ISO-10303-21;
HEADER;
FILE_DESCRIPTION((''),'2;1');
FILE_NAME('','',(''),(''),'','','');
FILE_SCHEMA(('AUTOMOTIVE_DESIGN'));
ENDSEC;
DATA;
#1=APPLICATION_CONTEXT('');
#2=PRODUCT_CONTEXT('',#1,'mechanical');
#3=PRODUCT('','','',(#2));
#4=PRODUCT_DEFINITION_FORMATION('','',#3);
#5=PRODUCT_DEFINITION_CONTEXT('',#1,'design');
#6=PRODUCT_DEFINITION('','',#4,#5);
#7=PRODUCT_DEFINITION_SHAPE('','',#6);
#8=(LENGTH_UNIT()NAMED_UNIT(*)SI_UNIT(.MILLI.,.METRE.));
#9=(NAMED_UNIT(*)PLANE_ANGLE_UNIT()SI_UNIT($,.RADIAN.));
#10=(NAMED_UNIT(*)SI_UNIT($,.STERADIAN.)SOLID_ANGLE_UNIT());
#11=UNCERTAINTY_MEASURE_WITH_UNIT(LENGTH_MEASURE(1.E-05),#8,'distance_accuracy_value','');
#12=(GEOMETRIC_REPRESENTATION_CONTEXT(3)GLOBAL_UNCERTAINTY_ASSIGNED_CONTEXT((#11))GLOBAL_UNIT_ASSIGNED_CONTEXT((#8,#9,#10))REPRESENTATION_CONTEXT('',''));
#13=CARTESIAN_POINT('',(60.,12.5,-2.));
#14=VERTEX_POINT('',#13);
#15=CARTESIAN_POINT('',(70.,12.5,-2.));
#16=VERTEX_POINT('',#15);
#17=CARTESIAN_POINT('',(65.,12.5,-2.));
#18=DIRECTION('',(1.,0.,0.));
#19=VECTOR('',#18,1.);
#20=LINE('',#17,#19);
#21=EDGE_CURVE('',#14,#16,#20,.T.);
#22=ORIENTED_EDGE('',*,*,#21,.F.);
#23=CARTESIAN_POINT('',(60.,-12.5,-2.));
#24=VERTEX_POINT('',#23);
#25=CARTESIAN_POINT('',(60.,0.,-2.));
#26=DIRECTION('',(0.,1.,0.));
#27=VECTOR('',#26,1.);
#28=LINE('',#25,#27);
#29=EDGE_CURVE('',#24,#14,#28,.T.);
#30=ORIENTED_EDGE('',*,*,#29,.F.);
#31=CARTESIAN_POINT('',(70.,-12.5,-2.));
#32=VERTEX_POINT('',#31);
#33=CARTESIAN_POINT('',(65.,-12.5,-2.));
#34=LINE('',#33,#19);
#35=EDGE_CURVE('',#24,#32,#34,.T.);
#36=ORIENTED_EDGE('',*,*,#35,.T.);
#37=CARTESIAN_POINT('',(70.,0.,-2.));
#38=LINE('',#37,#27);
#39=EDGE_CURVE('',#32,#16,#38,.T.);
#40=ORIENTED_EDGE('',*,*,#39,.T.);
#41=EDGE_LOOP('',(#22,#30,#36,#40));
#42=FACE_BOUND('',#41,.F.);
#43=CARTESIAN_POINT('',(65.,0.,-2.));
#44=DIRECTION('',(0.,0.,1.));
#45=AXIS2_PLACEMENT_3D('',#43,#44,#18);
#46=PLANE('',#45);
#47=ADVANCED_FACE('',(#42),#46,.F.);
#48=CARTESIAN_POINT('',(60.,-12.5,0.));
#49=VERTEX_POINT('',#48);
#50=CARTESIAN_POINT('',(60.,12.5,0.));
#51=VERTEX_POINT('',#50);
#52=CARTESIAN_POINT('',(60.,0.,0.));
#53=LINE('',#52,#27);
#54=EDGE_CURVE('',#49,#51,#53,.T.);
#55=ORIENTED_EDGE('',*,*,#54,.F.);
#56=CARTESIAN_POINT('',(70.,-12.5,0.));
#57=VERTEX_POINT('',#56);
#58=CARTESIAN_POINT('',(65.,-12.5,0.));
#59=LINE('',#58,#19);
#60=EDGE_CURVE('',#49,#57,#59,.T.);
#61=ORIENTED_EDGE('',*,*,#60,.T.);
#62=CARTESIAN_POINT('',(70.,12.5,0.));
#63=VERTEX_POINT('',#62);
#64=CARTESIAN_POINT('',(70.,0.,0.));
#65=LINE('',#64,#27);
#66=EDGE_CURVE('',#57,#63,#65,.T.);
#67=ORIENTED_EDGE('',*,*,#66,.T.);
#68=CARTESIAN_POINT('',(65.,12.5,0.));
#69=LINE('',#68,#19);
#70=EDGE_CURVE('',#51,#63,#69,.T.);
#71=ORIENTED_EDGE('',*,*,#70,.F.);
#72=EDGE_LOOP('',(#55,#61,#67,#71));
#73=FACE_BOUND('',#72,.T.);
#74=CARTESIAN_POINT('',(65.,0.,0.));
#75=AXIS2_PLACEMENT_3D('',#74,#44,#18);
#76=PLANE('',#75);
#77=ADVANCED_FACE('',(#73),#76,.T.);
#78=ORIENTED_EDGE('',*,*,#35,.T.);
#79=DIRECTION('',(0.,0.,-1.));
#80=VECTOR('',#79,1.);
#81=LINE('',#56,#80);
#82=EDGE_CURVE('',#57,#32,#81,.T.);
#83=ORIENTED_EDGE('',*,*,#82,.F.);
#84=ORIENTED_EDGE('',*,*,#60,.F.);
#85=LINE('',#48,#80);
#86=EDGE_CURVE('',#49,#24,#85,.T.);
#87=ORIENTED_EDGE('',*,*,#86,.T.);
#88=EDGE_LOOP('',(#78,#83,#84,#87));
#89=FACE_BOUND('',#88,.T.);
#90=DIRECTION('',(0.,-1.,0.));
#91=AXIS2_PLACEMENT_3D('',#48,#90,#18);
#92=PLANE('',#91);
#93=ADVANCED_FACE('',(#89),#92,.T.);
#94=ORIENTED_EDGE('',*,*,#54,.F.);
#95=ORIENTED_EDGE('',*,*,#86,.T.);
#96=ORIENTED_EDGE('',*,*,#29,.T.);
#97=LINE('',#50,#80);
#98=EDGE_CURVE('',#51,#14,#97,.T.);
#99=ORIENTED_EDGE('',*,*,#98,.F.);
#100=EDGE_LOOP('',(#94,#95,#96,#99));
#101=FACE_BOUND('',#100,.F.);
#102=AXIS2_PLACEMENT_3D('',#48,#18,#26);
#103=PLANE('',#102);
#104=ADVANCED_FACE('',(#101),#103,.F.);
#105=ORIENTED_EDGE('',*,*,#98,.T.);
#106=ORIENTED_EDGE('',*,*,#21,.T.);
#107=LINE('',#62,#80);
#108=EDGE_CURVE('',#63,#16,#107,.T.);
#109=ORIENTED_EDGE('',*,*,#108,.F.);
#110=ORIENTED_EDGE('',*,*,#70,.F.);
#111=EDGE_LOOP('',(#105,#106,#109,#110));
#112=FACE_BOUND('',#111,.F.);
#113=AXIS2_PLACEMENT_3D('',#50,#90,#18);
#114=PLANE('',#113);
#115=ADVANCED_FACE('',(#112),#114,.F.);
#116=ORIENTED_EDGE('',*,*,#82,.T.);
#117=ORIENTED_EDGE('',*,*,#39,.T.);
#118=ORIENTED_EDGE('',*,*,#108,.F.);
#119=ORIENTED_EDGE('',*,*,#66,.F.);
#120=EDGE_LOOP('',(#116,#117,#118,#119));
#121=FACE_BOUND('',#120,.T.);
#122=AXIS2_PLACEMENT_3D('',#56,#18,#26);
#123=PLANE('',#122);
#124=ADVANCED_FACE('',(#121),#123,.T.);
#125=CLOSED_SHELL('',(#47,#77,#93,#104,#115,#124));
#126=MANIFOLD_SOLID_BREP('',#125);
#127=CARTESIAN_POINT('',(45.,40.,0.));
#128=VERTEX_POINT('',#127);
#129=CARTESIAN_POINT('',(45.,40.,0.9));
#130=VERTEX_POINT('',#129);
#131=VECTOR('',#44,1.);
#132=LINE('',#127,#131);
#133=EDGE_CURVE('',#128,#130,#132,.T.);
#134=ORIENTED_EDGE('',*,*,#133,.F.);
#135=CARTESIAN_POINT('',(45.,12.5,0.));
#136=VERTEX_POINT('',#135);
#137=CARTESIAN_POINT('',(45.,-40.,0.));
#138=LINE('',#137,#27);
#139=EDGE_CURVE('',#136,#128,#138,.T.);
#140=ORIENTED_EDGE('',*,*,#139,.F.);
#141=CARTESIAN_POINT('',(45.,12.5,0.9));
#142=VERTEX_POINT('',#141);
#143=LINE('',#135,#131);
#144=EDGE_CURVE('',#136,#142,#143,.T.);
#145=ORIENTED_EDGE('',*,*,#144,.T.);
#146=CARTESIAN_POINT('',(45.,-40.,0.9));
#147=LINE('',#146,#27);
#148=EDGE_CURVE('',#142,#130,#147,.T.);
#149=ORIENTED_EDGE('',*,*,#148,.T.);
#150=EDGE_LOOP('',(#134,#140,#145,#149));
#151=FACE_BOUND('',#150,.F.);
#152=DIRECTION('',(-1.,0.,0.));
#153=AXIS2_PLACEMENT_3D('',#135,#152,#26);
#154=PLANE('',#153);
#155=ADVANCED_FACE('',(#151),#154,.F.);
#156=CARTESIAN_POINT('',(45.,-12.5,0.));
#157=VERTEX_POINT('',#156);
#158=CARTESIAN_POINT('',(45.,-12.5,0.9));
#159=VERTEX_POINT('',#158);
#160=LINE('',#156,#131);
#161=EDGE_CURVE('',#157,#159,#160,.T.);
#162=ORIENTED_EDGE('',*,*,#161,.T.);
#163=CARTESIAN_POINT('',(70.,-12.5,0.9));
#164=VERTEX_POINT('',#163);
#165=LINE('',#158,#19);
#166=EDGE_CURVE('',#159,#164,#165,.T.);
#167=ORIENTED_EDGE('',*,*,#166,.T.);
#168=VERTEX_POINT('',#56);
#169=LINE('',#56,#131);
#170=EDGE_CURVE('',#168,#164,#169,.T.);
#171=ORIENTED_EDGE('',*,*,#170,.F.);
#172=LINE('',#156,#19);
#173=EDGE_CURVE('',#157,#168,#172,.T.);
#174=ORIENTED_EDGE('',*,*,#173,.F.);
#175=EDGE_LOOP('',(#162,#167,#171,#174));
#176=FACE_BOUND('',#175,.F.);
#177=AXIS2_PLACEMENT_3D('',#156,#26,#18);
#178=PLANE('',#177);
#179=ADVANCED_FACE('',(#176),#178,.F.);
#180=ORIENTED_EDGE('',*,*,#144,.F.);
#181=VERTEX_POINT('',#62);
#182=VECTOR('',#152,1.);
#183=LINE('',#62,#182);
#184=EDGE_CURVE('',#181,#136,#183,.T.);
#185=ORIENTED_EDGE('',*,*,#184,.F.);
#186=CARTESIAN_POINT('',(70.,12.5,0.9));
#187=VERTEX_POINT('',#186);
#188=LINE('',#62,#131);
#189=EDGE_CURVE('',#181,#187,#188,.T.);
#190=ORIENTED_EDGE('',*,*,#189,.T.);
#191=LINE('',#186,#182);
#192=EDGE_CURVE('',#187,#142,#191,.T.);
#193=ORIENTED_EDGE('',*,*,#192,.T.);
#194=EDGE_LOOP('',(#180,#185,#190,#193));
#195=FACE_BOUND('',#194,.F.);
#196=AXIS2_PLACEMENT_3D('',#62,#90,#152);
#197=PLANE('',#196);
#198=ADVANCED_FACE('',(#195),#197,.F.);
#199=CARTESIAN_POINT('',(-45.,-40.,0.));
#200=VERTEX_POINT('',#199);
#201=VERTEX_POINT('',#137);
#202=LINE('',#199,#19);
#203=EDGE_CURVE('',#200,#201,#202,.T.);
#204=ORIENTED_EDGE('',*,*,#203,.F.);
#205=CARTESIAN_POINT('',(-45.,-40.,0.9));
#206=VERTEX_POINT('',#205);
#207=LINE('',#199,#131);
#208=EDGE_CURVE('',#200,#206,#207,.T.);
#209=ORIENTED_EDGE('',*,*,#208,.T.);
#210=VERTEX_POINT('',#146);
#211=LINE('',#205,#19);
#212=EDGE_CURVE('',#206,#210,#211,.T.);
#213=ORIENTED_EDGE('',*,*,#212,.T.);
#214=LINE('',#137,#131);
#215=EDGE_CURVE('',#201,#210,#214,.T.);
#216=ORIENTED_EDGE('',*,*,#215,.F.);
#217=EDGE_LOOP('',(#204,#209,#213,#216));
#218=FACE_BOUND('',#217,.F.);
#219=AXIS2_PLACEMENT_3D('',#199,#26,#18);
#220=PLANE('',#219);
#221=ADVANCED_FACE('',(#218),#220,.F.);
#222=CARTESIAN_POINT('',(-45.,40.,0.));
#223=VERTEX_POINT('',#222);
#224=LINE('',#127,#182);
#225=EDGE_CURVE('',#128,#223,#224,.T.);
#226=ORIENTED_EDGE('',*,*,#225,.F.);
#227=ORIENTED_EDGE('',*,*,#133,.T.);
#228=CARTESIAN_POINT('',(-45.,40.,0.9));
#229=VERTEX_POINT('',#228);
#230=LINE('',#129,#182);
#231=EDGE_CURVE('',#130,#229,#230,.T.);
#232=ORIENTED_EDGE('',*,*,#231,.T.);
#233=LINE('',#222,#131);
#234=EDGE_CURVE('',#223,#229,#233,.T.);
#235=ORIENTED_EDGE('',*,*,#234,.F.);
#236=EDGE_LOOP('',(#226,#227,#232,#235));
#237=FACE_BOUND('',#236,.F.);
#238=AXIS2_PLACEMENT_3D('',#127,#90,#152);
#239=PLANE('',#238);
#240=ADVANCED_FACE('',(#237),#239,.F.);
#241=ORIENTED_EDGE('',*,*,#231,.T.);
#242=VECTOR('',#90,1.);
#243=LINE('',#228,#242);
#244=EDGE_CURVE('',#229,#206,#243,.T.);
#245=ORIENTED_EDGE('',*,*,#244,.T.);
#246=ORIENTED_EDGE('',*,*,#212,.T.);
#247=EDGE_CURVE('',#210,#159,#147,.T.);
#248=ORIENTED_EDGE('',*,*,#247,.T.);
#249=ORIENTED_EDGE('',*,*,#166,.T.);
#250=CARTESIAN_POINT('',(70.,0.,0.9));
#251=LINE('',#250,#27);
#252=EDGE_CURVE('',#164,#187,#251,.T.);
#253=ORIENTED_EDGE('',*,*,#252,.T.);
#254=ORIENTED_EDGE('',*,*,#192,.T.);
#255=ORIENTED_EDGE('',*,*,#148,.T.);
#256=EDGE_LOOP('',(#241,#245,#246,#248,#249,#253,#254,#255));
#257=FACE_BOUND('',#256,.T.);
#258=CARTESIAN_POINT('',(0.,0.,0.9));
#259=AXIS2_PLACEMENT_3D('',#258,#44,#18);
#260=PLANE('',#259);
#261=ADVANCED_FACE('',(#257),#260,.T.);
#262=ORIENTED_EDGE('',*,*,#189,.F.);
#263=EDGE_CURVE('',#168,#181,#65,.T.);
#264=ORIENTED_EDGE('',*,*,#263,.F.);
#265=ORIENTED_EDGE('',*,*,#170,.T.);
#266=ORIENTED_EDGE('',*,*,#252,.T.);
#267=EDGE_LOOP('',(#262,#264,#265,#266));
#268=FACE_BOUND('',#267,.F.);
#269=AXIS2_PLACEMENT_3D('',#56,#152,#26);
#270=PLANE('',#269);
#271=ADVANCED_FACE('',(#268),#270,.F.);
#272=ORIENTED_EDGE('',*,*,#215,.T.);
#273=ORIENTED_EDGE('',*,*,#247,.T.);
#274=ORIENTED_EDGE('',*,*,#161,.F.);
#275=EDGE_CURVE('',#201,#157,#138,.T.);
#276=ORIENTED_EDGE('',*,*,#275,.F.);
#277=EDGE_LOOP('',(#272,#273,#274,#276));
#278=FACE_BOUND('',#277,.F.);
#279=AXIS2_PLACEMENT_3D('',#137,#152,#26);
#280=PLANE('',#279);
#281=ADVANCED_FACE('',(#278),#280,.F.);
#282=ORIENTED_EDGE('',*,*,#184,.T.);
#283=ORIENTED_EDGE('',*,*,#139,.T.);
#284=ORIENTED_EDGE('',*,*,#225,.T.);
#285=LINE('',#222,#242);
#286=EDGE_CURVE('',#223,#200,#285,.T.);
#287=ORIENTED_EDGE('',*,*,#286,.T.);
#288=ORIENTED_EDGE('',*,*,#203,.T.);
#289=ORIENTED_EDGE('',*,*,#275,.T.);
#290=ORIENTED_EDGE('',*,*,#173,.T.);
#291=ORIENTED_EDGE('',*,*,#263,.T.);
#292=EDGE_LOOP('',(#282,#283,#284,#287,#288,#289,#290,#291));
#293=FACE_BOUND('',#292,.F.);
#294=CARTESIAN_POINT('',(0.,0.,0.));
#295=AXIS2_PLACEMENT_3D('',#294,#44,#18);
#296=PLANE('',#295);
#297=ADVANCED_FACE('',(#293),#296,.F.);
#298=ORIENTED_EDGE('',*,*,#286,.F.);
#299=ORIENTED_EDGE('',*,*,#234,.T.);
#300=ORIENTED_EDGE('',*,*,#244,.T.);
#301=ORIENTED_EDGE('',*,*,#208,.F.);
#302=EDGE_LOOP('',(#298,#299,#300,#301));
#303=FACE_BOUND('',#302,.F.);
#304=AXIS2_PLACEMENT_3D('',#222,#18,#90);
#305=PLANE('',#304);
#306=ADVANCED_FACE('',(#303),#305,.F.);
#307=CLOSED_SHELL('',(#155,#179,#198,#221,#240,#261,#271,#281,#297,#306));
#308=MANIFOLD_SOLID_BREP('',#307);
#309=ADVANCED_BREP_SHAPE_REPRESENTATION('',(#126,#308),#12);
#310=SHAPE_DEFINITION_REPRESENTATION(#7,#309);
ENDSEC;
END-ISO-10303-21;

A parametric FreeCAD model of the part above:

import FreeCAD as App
import Part
import Sketcher

V = App.Vector
Q = App.Units.Quantity


def add_polygon(sketch, points):
    """Adds a closed chain of lines whose ends are joined by coincident constraints."""
    first, n = sketch.GeometryCount, len(points)
    for a, b in zip(points, points[1:] + points[:1]):
        sketch.addGeometry(Part.LineSegment(App.Vector(*a, 0), App.Vector(*b, 0)), False)
    for i in range(n):
        sketch.addConstraint(Sketcher.Constraint("Coincident", first + i, 2, first + (i + 1) % n, 1))

doc = App.newDocument("Part")
body = doc.addObject("PartDesign::Body", "Body")

# Sketch on XY plane
sketch1 = doc.addObject("Sketcher::SketchObject", "Sketch")
body.addObject(sketch1)
sketch1.AttachmentSupport = (doc.XY_Plane, [""])
sketch1.MapMode = "FlatFace"
add_polygon(sketch1, [(45, 40), (-45, 40), (-45, -40), (45, -40), (45, -12.5), (70, -12.5), (70, 12.5), (45, 12.5)])  # lines 0-7
sketch1.addConstraint([
    Sketcher.Constraint("Horizontal", 0),
    Sketcher.Constraint("Vertical", 1),
    Sketcher.Constraint("Horizontal", 2),
    Sketcher.Constraint("Vertical", 3),
    Sketcher.Constraint("Horizontal", 4),
    Sketcher.Constraint("Vertical", 5),
    Sketcher.Constraint("Horizontal", 6),
    Sketcher.Constraint("Vertical", 7),
    Sketcher.Constraint("Symmetric", 0, 2, 2, 2, -1, 1),
    Sketcher.Constraint("Symmetric", 3, 2, 6, 2, -1),
    Sketcher.Constraint("Equal", 6, 5),
    Sketcher.Constraint("DistanceX", 0, 2, 0, 1, Q("90 mm")),
    Sketcher.Constraint("DistanceX", 4, 1, 4, 2, Q("25 mm")),
    Sketcher.Constraint("DistanceY", 1, 2, 1, 1, Q("80 mm")),
])
pad1 = doc.addObject("PartDesign::Pad", "Pad")
body.addObject(pad1)
pad1.Profile = sketch1
pad1.Length = 0.9
body2 = doc.addObject("PartDesign::Body", "Body001")

# Sketch on XY plane
sketch2 = doc.addObject("Sketcher::SketchObject", "Sketch001")
body2.addObject(sketch2)
sketch2.AttachmentSupport = (doc.getObject("XY_Plane001"), [""])
sketch2.MapMode = "FlatFace"
add_polygon(sketch2, [(60, 12.5), (60, -12.5), (70, -12.5), (70, 12.5)])  # lines 0-3
sketch2.addConstraint([
    Sketcher.Constraint("Vertical", 0),
    Sketcher.Constraint("Horizontal", 1),
    Sketcher.Constraint("Vertical", 2),
    Sketcher.Constraint("Horizontal", 3),
    Sketcher.Constraint("DistanceX", 1, 1, 1, 2, Q("10 mm")),
    Sketcher.Constraint("DistanceY", 0, 2, 0, 1, Q("25 mm")),
    Sketcher.Constraint("DistanceX", -1, 1, 0, 2, Q("60 mm")),
    Sketcher.Constraint("DistanceY", 0, 2, -1, 1, Q("12.5 mm")),
])
pad2 = doc.addObject("PartDesign::Pad", "Pad001")
body2.addObject(pad2)
pad2.Profile = sketch2
pad2.Length = 2
pad2.Reversed = True

doc.recompute()
